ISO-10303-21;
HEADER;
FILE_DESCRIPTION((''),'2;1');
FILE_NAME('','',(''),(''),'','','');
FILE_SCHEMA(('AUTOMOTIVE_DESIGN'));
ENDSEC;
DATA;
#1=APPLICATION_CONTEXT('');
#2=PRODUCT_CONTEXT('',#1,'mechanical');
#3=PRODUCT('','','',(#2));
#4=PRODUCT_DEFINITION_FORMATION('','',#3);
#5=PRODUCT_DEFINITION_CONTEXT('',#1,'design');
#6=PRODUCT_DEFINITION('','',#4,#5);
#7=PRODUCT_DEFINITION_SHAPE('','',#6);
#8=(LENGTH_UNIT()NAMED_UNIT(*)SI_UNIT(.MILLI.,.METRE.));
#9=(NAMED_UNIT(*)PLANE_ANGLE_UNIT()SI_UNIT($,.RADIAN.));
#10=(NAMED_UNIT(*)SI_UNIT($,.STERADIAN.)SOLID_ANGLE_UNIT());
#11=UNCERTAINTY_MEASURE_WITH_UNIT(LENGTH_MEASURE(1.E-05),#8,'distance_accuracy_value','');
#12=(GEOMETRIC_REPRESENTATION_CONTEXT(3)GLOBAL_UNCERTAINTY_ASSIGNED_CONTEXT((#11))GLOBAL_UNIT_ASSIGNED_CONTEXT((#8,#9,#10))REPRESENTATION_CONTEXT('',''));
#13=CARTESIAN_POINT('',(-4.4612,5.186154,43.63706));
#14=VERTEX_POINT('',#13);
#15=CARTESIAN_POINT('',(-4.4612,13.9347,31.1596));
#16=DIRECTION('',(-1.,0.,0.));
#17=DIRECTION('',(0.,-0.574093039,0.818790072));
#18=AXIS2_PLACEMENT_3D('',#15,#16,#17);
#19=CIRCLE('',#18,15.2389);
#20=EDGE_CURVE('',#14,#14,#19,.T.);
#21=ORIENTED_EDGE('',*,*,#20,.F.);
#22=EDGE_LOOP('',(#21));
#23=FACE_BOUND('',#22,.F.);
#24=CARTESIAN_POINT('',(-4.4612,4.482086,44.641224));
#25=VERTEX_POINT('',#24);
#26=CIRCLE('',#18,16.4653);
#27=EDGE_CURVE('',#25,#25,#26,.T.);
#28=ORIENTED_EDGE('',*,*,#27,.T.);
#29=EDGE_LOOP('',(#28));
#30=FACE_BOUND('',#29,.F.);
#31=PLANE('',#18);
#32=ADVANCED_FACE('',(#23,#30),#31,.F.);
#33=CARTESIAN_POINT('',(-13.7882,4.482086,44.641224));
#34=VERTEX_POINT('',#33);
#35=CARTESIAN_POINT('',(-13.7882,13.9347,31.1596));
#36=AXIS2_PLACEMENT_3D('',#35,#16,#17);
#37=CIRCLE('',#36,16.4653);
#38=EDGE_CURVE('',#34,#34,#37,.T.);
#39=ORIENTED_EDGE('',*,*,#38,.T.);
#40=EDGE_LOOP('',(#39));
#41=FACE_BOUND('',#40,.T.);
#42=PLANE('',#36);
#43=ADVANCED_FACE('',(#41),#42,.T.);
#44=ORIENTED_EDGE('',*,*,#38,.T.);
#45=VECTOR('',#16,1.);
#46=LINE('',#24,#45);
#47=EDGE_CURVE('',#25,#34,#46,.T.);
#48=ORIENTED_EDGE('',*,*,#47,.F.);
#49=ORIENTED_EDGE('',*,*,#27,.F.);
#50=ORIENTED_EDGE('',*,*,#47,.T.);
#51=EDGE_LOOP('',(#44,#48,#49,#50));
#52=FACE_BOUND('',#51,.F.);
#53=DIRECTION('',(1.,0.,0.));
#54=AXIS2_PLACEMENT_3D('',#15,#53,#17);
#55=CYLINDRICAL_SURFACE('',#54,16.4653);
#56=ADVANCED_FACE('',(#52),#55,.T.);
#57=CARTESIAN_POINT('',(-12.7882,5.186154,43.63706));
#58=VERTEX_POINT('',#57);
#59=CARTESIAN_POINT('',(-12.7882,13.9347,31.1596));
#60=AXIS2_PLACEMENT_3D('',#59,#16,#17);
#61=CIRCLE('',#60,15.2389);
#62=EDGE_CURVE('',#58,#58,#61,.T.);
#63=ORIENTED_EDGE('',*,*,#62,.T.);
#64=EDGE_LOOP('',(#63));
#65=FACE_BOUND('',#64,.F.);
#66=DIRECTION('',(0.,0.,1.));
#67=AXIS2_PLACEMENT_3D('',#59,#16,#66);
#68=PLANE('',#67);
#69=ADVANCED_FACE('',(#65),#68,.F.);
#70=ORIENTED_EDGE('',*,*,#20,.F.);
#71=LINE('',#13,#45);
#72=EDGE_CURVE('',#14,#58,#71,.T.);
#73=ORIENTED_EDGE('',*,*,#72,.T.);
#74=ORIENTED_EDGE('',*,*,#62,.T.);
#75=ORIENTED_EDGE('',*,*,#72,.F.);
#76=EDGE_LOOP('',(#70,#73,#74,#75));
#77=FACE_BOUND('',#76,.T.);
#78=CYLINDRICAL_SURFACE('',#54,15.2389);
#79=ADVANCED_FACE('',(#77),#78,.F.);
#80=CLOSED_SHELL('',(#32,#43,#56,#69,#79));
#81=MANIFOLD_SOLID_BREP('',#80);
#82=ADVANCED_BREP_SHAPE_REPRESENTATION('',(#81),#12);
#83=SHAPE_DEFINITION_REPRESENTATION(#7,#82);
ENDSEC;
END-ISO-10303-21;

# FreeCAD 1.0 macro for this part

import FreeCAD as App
import Part
import Sketcher

V = App.Vector
Q = App.Units.Quantity

doc = App.newDocument("Part")
body = doc.addObject("PartDesign::Body", "Body")

# Sketch on YZ plane
sketch1 = doc.addObject("Sketcher::SketchObject", "Sketch")
body.addObject(sketch1)
sketch1.AttachmentSupport = (doc.YZ_Plane, [""])
sketch1.MapMode = "FlatFace"
sketch1.AttachmentOffset = App.Placement(V(0, 0, -4.4612), App.Rotation())
sketch1.addGeometry(Part.Circle(V(14, 31, 0), V(0, 0, 1), 16), False)
sketch1.addGeometry(Part.Circle(V(14, 31, 0), V(0, 0, 1), 15), False)
sketch1.addConstraint(Sketcher.Constraint("Coincident", 1, 3, 0, 3))
sketch1.addConstraint(Sketcher.Constraint("Diameter", 0, Q("32.9306 mm")))
sketch1.addConstraint(Sketcher.Constraint("Diameter", 1, Q("30.4778 mm")))
sketch1.addConstraint(Sketcher.Constraint("DistanceX", -1, 1, 0, 3, Q("13.9347 mm")))
sketch1.addConstraint(Sketcher.Constraint("DistanceY", -1, 1, 0, 3, Q("31.1596 mm")))
pad1 = doc.addObject("PartDesign::Pad", "Pad")
body.addObject(pad1)
pad1.Profile = sketch1
pad1.Length = 9.327
pad1.Reversed = True

# Sketch on YZ plane
sketch2 = doc.addObject("Sketcher::SketchObject", "Sketch001")
body.addObject(sketch2)
sketch2.AttachmentSupport = (doc.YZ_Plane, [""])
sketch2.MapMode = "FlatFace"
sketch2.AttachmentOffset = App.Placement(V(0, 0, -13.7882), App.Rotation())
sketch2.addGeometry(Part.Circle(V(14, 31, 0), V(0, 0, 1), 15), False)
sketch2.addConstraint(Sketcher.Constraint("Diameter", 0, Q("30.4778 mm")))
sketch2.addConstraint(Sketcher.Constraint("DistanceX", -1, 1, 0, 3, Q("13.9347 mm")))
sketch2.addConstraint(Sketcher.Constraint("DistanceY", -1, 1, 0, 3, Q("31.1596 mm")))
pad2 = doc.addObject("PartDesign::Pad", "Pad001")
body.addObject(pad2)
pad2.Profile = sketch2
pad2.Length = 1

doc.recompute()
